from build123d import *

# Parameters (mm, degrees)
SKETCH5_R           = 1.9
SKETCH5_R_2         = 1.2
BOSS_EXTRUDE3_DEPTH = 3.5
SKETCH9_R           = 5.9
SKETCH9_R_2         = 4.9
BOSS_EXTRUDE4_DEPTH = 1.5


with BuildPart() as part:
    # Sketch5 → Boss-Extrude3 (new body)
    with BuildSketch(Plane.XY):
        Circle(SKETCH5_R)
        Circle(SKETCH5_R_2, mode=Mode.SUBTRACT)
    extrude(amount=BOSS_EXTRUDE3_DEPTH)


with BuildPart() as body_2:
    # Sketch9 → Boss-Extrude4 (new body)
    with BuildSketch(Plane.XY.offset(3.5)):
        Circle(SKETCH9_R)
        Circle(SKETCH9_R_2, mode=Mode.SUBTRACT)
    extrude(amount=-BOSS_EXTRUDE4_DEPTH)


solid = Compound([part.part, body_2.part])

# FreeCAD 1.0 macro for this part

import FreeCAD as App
import Part
import Sketcher

V = App.Vector

doc = App.newDocument("Part")
params = doc.addObject("Spreadsheet::Sheet", "Params")
for row, (alias, value) in enumerate([
    ("sketch1_diameter", "3.8 mm"),
    ("sketch1_diameter2", "2.4 mm"),
    ("pad1_length", "3.5 mm"),
    ("sketch2_diameter", "11.8 mm"),
    ("sketch2_diameter2", "9.8 mm"),
    ("pad2_length", "1.5 mm"),
], start=1):
    params.set(f"A{row}", alias)
    params.set(f"B{row}", "=" + value)
    params.setAlias(f"B{row}", alias)

body = doc.addObject("PartDesign::Body", "Body")

sketch1 = body.newObject("Sketcher::SketchObject", "Sketch")
sketch1.AttachmentSupport = (doc.getObject("XY_Plane"), [""])
sketch1.MapMode = "FlatFace"
sketch1.addGeometry([
    Part.Circle(V(0, 0, 0), V(0, 0, 1), 1.9),
    Part.Circle(V(0, 0, 0), V(0, 0, 1), 1.2),
], False)
sketch1.addConstraint([
    Sketcher.Constraint("Coincident", 0, 3, -1, 1),
    Sketcher.Constraint("Coincident", 1, 3, -1, 1),
    Sketcher.Constraint("Diameter", 0, 3.8),
    Sketcher.Constraint("Diameter", 1, 2.4),
])
sketch1.setExpression("Constraints[2]", "Params.sketch1_diameter")
sketch1.setExpression("Constraints[3]", "Params.sketch1_diameter2")
pad1 = body.newObject("PartDesign::Pad", "Pad")
pad1.Profile = sketch1
pad1.setExpression("Length", "Params.pad1_length")
body2 = doc.addObject("PartDesign::Body", "Body001")

sketch2 = body2.newObject("Sketcher::SketchObject", "Sketch001")
sketch2.AttachmentSupport = (doc.getObject("XY_Plane001"), [""])
sketch2.MapMode = "FlatFace"
sketch2.AttachmentOffset = App.Placement(V(0, 0, 3.5), App.Rotation())
sketch2.addGeometry([
    Part.Circle(V(0, 0, 0), V(0, 0, 1), 5.9),
    Part.Circle(V(0, 0, 0), V(0, 0, 1), 4.9),
], False)
sketch2.addConstraint([
    Sketcher.Constraint("Coincident", 0, 3, -1, 1),
    Sketcher.Constraint("Coincident", 1, 3, -1, 1),
    Sketcher.Constraint("Diameter", 0, 11.8),
    Sketcher.Constraint("Diameter", 1, 9.8),
])
sketch2.setExpression("Constraints[2]", "Params.sketch2_diameter")
sketch2.setExpression("Constraints[3]", "Params.sketch2_diameter2")
pad2 = body2.newObject("PartDesign::Pad", "Pad001")
pad2.Profile = sketch2
pad2.setExpression("Length", "Params.pad2_length")
pad2.Reversed = True

doc.recompute()
